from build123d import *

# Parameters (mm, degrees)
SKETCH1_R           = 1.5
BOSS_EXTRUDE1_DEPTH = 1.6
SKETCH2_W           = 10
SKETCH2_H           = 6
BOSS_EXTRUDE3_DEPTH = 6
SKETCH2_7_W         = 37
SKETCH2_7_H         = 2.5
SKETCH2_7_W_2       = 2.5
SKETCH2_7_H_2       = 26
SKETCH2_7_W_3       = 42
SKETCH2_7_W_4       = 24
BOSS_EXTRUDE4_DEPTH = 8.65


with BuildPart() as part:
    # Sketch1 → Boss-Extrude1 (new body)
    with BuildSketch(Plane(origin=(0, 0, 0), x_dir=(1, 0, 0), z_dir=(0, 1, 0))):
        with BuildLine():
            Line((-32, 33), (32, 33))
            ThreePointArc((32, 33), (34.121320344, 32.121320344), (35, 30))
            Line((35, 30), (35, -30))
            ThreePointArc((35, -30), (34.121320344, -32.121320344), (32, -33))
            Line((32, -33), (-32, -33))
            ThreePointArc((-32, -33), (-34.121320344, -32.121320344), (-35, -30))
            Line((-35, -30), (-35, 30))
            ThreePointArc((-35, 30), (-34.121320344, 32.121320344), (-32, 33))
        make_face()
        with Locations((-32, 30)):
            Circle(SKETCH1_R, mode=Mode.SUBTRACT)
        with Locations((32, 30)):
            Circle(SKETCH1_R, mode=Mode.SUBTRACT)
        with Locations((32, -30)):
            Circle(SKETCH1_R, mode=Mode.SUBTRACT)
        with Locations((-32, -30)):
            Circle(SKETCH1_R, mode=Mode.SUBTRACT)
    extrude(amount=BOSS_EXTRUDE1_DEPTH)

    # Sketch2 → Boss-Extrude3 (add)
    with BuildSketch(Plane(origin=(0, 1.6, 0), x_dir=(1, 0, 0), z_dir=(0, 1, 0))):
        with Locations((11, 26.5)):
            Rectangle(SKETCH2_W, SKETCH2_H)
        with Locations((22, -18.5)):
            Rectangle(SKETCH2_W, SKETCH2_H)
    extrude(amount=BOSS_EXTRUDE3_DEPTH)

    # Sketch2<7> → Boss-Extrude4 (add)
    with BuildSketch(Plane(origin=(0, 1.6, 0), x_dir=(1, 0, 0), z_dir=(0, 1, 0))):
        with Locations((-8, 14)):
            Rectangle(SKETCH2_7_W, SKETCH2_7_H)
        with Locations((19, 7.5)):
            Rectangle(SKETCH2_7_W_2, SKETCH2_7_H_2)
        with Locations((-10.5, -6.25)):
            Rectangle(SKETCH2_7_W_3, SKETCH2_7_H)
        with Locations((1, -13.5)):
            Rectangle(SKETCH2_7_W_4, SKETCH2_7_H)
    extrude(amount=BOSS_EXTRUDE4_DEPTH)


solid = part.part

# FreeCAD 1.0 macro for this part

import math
import FreeCAD as App
import Part
import Sketcher
from FreeCAD import Vector


def add_polygon(sketch, points):
    """Adds a closed chain of lines whose ends are joined by coincident constraints."""
    first, n = sketch.GeometryCount, len(points)
    for a, b in zip(points, points[1:] + points[:1]):
        sketch.addGeometry(Part.LineSegment(App.Vector(*a, 0), App.Vector(*b, 0)), False)
    for i in range(n):
        sketch.addConstraint(Sketcher.Constraint("Coincident", first + i, 2, first + (i + 1) % n, 1))

doc = App.newDocument("Part")
body = doc.addObject("PartDesign::Body", "Body")

# Sketch on XZ plane
sketch1 = body.newObject("Sketcher::SketchObject", "Sketch")
sketch1.AttachmentSupport = (doc.getObject("XZ_Plane"), [""])
sketch1.MapMode = "FlatFace"
sketch1.addGeometry([
    Part.LineSegment(Vector(32, -33, 0), Vector(-32, -33, 0)),  # 0
    Part.ArcOfCircle(Part.Circle(Vector(-32, -30, 0), Vector(0, 0, 1), 3), math.radians(180), math.radians(270)),  # 1
    Part.LineSegment(Vector(-35, -30, 0), Vector(-35, 30, 0)),  # 2
    Part.ArcOfCircle(Part.Circle(Vector(-32, 30, 0), Vector(0, 0, 1), 3), math.radians(90), math.radians(180)),  # 3
    Part.LineSegment(Vector(-32, 33, 0), Vector(32, 33, 0)),  # 4
    Part.ArcOfCircle(Part.Circle(Vector(32, 30, 0), Vector(0, 0, 1), 3), math.radians(0), math.radians(90)),  # 5
    Part.LineSegment(Vector(35, 30, 0), Vector(35, -30, 0)),  # 6
    Part.ArcOfCircle(Part.Circle(Vector(32, -30, 0), Vector(0, 0, 1), 3), math.radians(-90), math.radians(0)),  # 7
    Part.Circle(Vector(32, 30, 0), Vector(0, 0, 1), 1.5),  # 8
    Part.Circle(Vector(-32, 30, 0), Vector(0, 0, 1), 1.5),  # 9
    Part.Circle(Vector(32, -30, 0), Vector(0, 0, 1), 1.5),  # 10
    Part.Circle(Vector(-32, -30, 0), Vector(0, 0, 1), 1.5),  # 11
], False)
sketch1.addConstraint([
    Sketcher.Constraint("Tangent", 0, 2, 1, 2),
    Sketcher.Constraint("Tangent", 1, 1, 2, 1),
    Sketcher.Constraint("Tangent", 2, 2, 3, 2),
    Sketcher.Constraint("Tangent", 3, 1, 4, 1),
    Sketcher.Constraint("Tangent", 4, 2, 5, 2),
    Sketcher.Constraint("Tangent", 5, 1, 6, 1),
    Sketcher.Constraint("Tangent", 6, 2, 7, 2),
    Sketcher.Constraint("Tangent", 7, 1, 0, 1),
    Sketcher.Constraint("Horizontal", 0),
    Sketcher.Constraint("Vertical", 2),
    Sketcher.Constraint("Horizontal", 4),
    Sketcher.Constraint("Vertical", 6),
    Sketcher.Constraint("Coincident", 8, 3, 5, 3),
    Sketcher.Constraint("Coincident", 9, 3, 3, 3),
    Sketcher.Constraint("Coincident", 10, 3, 7, 3),
    Sketcher.Constraint("Coincident", 11, 3, 1, 3),
    Sketcher.Constraint("Equal", 1, 3),
    Sketcher.Constraint("Equal", 3, 5),
    Sketcher.Constraint("Equal", 5, 7),
    Sketcher.Constraint("Equal", 8, 9),
    Sketcher.Constraint("Equal", 9, 10),
    Sketcher.Constraint("Equal", 10, 11),
    Sketcher.Constraint("Symmetric", 1, 3, 5, 3, -1, 1),
    Sketcher.Constraint("Diameter", 8, 3.0),
    Sketcher.Constraint("Radius", 1, 3.0),
    Sketcher.Constraint("DistanceX", 0, 2, 0, 1, 64.0),
    Sketcher.Constraint("DistanceY", 2, 1, 2, 2, 60.0),
])
pad1 = body.newObject("PartDesign::Pad", "Pad")
pad1.Profile = sketch1
pad1.Length = 1.6
pad1.Reversed = True

# Sketch on XZ plane
sketch2 = body.newObject("Sketcher::SketchObject", "Sketch001")
sketch2.AttachmentSupport = (doc.getObject("XZ_Plane"), [""])
sketch2.MapMode = "FlatFace"
sketch2.AttachmentOffset = App.Placement(Vector(0, 0, -1.6), App.Rotation())
add_polygon(sketch2, [(6, -29.5), (6, -23.5), (16, -23.5), (16, -29.5)])  # lines 0-3
add_polygon(sketch2, [(17, 15.5), (17, 21.5), (27, 21.5), (27, 15.5)])  # lines 4-7
sketch2.addConstraint([
    Sketcher.Constraint("Vertical", 0),
    Sketcher.Constraint("Horizontal", 1),
    Sketcher.Constraint("Vertical", 2),
    Sketcher.Constraint("Horizontal", 3),
    Sketcher.Constraint("Vertical", 4),
    Sketcher.Constraint("Horizontal", 5),
    Sketcher.Constraint("Vertical", 6),
    Sketcher.Constraint("Horizontal", 7),
    Sketcher.Constraint("Equal", 3, 5),
    Sketcher.Constraint("Equal", 2, 4),
    Sketcher.Constraint("DistanceX", 1, 1, 1, 2, 10.0),
    Sketcher.Constraint("DistanceY", 0, 1, 0, 2, 6.0),
    Sketcher.Constraint("DistanceX", -1, 1, 0, 2, 6.0),
    Sketcher.Constraint("DistanceX", -1, 1, 4, 2, 17.0),
    Sketcher.Constraint("DistanceY", 1, 2, 4, 2, 45.0),
    Sketcher.Constraint("DistanceY", 0, 2, -1, 1, 23.5),
])
pad2 = body.newObject("PartDesign::Pad", "Pad001")
pad2.Profile = sketch2
pad2.Length = 6
pad2.Reversed = True

# Sketch on XZ plane
sketch3 = body.newObject("Sketcher::SketchObject", "Sketch002")
sketch3.AttachmentSupport = (doc.getObject("XZ_Plane"), [""])
sketch3.MapMode = "FlatFace"
sketch3.AttachmentOffset = App.Placement(Vector(0, 0, -1.6), App.Rotation())
add_polygon(sketch3, [(-26.5, -15.25), (-26.5, -12.75), (10.5, -12.75), (10.5, -15.25)])  # lines 0-3
add_polygon(sketch3, [(17.75, -20.5), (17.75, 5.5), (20.25, 5.5), (20.25, -20.5)])  # lines 4-7
add_polygon(sketch3, [(-31.5, 5), (-31.5, 7.5), (10.5, 7.5), (10.5, 5)])  # lines 8-11
add_polygon(sketch3, [(-11, 12.25), (-11, 14.75), (13, 14.75), (13, 12.25)])  # lines 12-15
sketch3.addConstraint([
    Sketcher.Constraint("Vertical", 0),
    Sketcher.Constraint("Horizontal", 1),
    Sketcher.Constraint("Vertical", 2),
    Sketcher.Constraint("Horizontal", 3),
    Sketcher.Constraint("Vertical", 4),
    Sketcher.Constraint("Horizontal", 5),
    Sketcher.Constraint("Vertical", 6),
    Sketcher.Constraint("Horizontal", 7),
    Sketcher.Constraint("Vertical", 8),
    Sketcher.Constraint("Horizontal", 9),
    Sketcher.Constraint("Vertical", 10),
    Sketcher.Constraint("Horizontal", 11),
    Sketcher.Constraint("Vertical", 12),
    Sketcher.Constraint("Horizontal", 13),
    Sketcher.Constraint("Vertical", 14),
    Sketcher.Constraint("Horizontal", 15),
    Sketcher.Constraint("Vertical", 2, 2, 9, 2),
    Sketcher.Constraint("Equal", 7, 0),
    Sketcher.Constraint("Equal", 2, 8),
    Sketcher.Constraint("Equal", 10, 12),
    Sketcher.Constraint("DistanceX", 1, 1, 1, 2, 37.0),
    Sketcher.Constraint("DistanceX", 9, 1, 9, 2, 42.0),
    Sketcher.Constraint("DistanceX", 13, 1, 13, 2, 24.0),
    Sketcher.Constraint("DistanceY", 4, 1, 4, 2, 26.0),
    Sketcher.Constraint("DistanceX", 5, 1, 5, 2, 2.5),
    Sketcher.Constraint("DistanceY", -1, 1, 10, 2, 5.0),
    Sketcher.Constraint("DistanceX", 12, 2, -1, 1, 11.0),
    Sketcher.Constraint("DistanceY", 4, 2, 8, 2, 2.0),
    Sketcher.Constraint("DistanceX", 0, 2, -1, 1, 26.5),
    Sketcher.Constraint("DistanceY", 0, 2, -1, 1, 12.75),
    Sketcher.Constraint("DistanceX", -1, 1, 4, 2, 17.75),
    Sketcher.Constraint("DistanceY", -1, 1, 12, 2, 14.75),
])
pad3 = body.newObject("PartDesign::Pad", "Pad002")
pad3.Profile = sketch3
pad3.Length = 8.65
pad3.Reversed = True

doc.recompute()
